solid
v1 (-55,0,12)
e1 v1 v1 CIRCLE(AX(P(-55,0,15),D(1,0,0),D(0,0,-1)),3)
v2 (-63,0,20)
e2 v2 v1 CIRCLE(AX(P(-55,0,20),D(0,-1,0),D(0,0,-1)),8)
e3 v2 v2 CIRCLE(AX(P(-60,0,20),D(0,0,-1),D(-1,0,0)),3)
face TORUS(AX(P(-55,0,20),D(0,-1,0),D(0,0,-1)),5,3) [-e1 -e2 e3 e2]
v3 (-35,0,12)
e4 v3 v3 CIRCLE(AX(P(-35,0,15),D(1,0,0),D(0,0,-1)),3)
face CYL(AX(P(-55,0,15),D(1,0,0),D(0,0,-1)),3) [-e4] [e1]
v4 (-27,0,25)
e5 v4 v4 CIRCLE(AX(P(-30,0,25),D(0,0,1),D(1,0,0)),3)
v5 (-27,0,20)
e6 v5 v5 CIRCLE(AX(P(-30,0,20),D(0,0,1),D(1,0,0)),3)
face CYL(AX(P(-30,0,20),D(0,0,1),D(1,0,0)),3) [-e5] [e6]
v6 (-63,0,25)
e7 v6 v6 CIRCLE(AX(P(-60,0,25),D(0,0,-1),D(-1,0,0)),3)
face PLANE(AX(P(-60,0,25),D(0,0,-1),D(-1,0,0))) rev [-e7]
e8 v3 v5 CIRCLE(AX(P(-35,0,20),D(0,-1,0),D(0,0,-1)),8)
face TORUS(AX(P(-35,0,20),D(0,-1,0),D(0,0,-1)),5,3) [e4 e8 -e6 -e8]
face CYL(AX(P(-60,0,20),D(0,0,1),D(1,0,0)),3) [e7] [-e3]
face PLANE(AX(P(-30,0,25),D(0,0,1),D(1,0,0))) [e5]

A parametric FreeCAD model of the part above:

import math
import FreeCAD as App
import Part
import Sketcher

V = App.Vector
Q = App.Units.Quantity

doc = App.newDocument("Part")
params = doc.addObject("Spreadsheet::Sheet", "Params")
for row, (alias, value) in enumerate([
    ("sketch1_diameter", "6 mm"),
    ("sketch2_radius", "5 mm"),
    ("sketch2_width", "20 mm"),
    ("sketch2_height", "5 mm"),
], start=1):
    params.set(f"A{row}", alias)
    params.set(f"B{row}", "=" + value)
    params.setAlias(f"B{row}", alias)

body = doc.addObject("PartDesign::Body", "Body")

# Sketch on XY plane
sketch1 = body.newObject("Sketcher::SketchObject", "Sketch")
sketch1.AttachmentSupport = (doc.getObject("XY_Plane"), [""])
sketch1.MapMode = "FlatFace"
sketch1.AttachmentOffset = App.Placement(V(0, 0, 25), App.Rotation())
sketch1.addGeometry(Part.Circle(V(-60, 0, 0), V(0, 0, 1), 3), False)
sketch1.addConstraint(Sketcher.Constraint("PointOnObject", 0, 3, -1))
sketch1.addConstraint(Sketcher.Constraint("Diameter", 0, Q("6 mm")))
sketch1.addConstraint(Sketcher.Constraint("DistanceX", 0, 3, -1, 1, Q("60 mm")))
sketch1.setExpression("Constraints[1]", "Params.sketch1_diameter")

# Sketch on XZ plane
sketch2 = body.newObject("Sketcher::SketchObject", "Sketch001")
sketch2.AttachmentSupport = (doc.getObject("XZ_Plane"), [""])
sketch2.MapMode = "FlatFace"
sketch2.addGeometry(Part.LineSegment(V(-60, 25, 0), V(-60, 20, 0)), False)
sketch2.addGeometry(Part.ArcOfCircle(Part.Circle(V(-55, 20, 0), V(0, 0, 1), 5), math.radians(180), math.radians(270)), False)
sketch2.addGeometry(Part.LineSegment(V(-55, 15, 0), V(-35, 15, 0)), False)
sketch2.addGeometry(Part.ArcOfCircle(Part.Circle(V(-35, 20, 0), V(0, 0, 1), 5), math.radians(-90), math.radians(0)), False)
sketch2.addGeometry(Part.LineSegment(V(-30, 20, 0), V(-30, 25, 0)), False)
sketch2.addConstraint(Sketcher.Constraint("Tangent", 0, 2, 1, 1))
sketch2.addConstraint(Sketcher.Constraint("Tangent", 1, 2, 2, 1))
sketch2.addConstraint(Sketcher.Constraint("Tangent", 2, 2, 3, 1))
sketch2.addConstraint(Sketcher.Constraint("Tangent", 3, 2, 4, 1))
sketch2.addConstraint(Sketcher.Constraint("Vertical", 0))
sketch2.addConstraint(Sketcher.Constraint("Horizontal", 2))
sketch2.addConstraint(Sketcher.Constraint("Vertical", 4))
sketch2.addConstraint(Sketcher.Constraint("Equal", 1, 3))
sketch2.addConstraint(Sketcher.Constraint("Horizontal", 0, 1, 4, 2))
sketch2.addConstraint(Sketcher.Constraint("Radius", 1, Q("5 mm")))
sketch2.addConstraint(Sketcher.Constraint("DistanceX", 2, 1, 2, 2, Q("20 mm")))
sketch2.addConstraint(Sketcher.Constraint("DistanceY", 0, 2, 0, 1, Q("5 mm")))
sketch2.addConstraint(Sketcher.Constraint("DistanceX", 1, 3, -1, 1, Q("55 mm")))
sketch2.addConstraint(Sketcher.Constraint("DistanceY", -1, 1, 1, 3, Q("20 mm")))
sketch2.setExpression("Constraints[9]", "Params.sketch2_radius")
sketch2.setExpression("Constraints[10]", "Params.sketch2_width")
sketch2.setExpression("Constraints[11]", "Params.sketch2_height")
doc.recompute()

additivepipe = body.newObject("PartDesign::AdditivePipe", "AdditivePipe")
additivepipe.Profile = sketch1
additivepipe.Spine = (sketch2, ["Edge1", "Edge2", "Edge3", "Edge4", "Edge5"])

doc.recompute()
